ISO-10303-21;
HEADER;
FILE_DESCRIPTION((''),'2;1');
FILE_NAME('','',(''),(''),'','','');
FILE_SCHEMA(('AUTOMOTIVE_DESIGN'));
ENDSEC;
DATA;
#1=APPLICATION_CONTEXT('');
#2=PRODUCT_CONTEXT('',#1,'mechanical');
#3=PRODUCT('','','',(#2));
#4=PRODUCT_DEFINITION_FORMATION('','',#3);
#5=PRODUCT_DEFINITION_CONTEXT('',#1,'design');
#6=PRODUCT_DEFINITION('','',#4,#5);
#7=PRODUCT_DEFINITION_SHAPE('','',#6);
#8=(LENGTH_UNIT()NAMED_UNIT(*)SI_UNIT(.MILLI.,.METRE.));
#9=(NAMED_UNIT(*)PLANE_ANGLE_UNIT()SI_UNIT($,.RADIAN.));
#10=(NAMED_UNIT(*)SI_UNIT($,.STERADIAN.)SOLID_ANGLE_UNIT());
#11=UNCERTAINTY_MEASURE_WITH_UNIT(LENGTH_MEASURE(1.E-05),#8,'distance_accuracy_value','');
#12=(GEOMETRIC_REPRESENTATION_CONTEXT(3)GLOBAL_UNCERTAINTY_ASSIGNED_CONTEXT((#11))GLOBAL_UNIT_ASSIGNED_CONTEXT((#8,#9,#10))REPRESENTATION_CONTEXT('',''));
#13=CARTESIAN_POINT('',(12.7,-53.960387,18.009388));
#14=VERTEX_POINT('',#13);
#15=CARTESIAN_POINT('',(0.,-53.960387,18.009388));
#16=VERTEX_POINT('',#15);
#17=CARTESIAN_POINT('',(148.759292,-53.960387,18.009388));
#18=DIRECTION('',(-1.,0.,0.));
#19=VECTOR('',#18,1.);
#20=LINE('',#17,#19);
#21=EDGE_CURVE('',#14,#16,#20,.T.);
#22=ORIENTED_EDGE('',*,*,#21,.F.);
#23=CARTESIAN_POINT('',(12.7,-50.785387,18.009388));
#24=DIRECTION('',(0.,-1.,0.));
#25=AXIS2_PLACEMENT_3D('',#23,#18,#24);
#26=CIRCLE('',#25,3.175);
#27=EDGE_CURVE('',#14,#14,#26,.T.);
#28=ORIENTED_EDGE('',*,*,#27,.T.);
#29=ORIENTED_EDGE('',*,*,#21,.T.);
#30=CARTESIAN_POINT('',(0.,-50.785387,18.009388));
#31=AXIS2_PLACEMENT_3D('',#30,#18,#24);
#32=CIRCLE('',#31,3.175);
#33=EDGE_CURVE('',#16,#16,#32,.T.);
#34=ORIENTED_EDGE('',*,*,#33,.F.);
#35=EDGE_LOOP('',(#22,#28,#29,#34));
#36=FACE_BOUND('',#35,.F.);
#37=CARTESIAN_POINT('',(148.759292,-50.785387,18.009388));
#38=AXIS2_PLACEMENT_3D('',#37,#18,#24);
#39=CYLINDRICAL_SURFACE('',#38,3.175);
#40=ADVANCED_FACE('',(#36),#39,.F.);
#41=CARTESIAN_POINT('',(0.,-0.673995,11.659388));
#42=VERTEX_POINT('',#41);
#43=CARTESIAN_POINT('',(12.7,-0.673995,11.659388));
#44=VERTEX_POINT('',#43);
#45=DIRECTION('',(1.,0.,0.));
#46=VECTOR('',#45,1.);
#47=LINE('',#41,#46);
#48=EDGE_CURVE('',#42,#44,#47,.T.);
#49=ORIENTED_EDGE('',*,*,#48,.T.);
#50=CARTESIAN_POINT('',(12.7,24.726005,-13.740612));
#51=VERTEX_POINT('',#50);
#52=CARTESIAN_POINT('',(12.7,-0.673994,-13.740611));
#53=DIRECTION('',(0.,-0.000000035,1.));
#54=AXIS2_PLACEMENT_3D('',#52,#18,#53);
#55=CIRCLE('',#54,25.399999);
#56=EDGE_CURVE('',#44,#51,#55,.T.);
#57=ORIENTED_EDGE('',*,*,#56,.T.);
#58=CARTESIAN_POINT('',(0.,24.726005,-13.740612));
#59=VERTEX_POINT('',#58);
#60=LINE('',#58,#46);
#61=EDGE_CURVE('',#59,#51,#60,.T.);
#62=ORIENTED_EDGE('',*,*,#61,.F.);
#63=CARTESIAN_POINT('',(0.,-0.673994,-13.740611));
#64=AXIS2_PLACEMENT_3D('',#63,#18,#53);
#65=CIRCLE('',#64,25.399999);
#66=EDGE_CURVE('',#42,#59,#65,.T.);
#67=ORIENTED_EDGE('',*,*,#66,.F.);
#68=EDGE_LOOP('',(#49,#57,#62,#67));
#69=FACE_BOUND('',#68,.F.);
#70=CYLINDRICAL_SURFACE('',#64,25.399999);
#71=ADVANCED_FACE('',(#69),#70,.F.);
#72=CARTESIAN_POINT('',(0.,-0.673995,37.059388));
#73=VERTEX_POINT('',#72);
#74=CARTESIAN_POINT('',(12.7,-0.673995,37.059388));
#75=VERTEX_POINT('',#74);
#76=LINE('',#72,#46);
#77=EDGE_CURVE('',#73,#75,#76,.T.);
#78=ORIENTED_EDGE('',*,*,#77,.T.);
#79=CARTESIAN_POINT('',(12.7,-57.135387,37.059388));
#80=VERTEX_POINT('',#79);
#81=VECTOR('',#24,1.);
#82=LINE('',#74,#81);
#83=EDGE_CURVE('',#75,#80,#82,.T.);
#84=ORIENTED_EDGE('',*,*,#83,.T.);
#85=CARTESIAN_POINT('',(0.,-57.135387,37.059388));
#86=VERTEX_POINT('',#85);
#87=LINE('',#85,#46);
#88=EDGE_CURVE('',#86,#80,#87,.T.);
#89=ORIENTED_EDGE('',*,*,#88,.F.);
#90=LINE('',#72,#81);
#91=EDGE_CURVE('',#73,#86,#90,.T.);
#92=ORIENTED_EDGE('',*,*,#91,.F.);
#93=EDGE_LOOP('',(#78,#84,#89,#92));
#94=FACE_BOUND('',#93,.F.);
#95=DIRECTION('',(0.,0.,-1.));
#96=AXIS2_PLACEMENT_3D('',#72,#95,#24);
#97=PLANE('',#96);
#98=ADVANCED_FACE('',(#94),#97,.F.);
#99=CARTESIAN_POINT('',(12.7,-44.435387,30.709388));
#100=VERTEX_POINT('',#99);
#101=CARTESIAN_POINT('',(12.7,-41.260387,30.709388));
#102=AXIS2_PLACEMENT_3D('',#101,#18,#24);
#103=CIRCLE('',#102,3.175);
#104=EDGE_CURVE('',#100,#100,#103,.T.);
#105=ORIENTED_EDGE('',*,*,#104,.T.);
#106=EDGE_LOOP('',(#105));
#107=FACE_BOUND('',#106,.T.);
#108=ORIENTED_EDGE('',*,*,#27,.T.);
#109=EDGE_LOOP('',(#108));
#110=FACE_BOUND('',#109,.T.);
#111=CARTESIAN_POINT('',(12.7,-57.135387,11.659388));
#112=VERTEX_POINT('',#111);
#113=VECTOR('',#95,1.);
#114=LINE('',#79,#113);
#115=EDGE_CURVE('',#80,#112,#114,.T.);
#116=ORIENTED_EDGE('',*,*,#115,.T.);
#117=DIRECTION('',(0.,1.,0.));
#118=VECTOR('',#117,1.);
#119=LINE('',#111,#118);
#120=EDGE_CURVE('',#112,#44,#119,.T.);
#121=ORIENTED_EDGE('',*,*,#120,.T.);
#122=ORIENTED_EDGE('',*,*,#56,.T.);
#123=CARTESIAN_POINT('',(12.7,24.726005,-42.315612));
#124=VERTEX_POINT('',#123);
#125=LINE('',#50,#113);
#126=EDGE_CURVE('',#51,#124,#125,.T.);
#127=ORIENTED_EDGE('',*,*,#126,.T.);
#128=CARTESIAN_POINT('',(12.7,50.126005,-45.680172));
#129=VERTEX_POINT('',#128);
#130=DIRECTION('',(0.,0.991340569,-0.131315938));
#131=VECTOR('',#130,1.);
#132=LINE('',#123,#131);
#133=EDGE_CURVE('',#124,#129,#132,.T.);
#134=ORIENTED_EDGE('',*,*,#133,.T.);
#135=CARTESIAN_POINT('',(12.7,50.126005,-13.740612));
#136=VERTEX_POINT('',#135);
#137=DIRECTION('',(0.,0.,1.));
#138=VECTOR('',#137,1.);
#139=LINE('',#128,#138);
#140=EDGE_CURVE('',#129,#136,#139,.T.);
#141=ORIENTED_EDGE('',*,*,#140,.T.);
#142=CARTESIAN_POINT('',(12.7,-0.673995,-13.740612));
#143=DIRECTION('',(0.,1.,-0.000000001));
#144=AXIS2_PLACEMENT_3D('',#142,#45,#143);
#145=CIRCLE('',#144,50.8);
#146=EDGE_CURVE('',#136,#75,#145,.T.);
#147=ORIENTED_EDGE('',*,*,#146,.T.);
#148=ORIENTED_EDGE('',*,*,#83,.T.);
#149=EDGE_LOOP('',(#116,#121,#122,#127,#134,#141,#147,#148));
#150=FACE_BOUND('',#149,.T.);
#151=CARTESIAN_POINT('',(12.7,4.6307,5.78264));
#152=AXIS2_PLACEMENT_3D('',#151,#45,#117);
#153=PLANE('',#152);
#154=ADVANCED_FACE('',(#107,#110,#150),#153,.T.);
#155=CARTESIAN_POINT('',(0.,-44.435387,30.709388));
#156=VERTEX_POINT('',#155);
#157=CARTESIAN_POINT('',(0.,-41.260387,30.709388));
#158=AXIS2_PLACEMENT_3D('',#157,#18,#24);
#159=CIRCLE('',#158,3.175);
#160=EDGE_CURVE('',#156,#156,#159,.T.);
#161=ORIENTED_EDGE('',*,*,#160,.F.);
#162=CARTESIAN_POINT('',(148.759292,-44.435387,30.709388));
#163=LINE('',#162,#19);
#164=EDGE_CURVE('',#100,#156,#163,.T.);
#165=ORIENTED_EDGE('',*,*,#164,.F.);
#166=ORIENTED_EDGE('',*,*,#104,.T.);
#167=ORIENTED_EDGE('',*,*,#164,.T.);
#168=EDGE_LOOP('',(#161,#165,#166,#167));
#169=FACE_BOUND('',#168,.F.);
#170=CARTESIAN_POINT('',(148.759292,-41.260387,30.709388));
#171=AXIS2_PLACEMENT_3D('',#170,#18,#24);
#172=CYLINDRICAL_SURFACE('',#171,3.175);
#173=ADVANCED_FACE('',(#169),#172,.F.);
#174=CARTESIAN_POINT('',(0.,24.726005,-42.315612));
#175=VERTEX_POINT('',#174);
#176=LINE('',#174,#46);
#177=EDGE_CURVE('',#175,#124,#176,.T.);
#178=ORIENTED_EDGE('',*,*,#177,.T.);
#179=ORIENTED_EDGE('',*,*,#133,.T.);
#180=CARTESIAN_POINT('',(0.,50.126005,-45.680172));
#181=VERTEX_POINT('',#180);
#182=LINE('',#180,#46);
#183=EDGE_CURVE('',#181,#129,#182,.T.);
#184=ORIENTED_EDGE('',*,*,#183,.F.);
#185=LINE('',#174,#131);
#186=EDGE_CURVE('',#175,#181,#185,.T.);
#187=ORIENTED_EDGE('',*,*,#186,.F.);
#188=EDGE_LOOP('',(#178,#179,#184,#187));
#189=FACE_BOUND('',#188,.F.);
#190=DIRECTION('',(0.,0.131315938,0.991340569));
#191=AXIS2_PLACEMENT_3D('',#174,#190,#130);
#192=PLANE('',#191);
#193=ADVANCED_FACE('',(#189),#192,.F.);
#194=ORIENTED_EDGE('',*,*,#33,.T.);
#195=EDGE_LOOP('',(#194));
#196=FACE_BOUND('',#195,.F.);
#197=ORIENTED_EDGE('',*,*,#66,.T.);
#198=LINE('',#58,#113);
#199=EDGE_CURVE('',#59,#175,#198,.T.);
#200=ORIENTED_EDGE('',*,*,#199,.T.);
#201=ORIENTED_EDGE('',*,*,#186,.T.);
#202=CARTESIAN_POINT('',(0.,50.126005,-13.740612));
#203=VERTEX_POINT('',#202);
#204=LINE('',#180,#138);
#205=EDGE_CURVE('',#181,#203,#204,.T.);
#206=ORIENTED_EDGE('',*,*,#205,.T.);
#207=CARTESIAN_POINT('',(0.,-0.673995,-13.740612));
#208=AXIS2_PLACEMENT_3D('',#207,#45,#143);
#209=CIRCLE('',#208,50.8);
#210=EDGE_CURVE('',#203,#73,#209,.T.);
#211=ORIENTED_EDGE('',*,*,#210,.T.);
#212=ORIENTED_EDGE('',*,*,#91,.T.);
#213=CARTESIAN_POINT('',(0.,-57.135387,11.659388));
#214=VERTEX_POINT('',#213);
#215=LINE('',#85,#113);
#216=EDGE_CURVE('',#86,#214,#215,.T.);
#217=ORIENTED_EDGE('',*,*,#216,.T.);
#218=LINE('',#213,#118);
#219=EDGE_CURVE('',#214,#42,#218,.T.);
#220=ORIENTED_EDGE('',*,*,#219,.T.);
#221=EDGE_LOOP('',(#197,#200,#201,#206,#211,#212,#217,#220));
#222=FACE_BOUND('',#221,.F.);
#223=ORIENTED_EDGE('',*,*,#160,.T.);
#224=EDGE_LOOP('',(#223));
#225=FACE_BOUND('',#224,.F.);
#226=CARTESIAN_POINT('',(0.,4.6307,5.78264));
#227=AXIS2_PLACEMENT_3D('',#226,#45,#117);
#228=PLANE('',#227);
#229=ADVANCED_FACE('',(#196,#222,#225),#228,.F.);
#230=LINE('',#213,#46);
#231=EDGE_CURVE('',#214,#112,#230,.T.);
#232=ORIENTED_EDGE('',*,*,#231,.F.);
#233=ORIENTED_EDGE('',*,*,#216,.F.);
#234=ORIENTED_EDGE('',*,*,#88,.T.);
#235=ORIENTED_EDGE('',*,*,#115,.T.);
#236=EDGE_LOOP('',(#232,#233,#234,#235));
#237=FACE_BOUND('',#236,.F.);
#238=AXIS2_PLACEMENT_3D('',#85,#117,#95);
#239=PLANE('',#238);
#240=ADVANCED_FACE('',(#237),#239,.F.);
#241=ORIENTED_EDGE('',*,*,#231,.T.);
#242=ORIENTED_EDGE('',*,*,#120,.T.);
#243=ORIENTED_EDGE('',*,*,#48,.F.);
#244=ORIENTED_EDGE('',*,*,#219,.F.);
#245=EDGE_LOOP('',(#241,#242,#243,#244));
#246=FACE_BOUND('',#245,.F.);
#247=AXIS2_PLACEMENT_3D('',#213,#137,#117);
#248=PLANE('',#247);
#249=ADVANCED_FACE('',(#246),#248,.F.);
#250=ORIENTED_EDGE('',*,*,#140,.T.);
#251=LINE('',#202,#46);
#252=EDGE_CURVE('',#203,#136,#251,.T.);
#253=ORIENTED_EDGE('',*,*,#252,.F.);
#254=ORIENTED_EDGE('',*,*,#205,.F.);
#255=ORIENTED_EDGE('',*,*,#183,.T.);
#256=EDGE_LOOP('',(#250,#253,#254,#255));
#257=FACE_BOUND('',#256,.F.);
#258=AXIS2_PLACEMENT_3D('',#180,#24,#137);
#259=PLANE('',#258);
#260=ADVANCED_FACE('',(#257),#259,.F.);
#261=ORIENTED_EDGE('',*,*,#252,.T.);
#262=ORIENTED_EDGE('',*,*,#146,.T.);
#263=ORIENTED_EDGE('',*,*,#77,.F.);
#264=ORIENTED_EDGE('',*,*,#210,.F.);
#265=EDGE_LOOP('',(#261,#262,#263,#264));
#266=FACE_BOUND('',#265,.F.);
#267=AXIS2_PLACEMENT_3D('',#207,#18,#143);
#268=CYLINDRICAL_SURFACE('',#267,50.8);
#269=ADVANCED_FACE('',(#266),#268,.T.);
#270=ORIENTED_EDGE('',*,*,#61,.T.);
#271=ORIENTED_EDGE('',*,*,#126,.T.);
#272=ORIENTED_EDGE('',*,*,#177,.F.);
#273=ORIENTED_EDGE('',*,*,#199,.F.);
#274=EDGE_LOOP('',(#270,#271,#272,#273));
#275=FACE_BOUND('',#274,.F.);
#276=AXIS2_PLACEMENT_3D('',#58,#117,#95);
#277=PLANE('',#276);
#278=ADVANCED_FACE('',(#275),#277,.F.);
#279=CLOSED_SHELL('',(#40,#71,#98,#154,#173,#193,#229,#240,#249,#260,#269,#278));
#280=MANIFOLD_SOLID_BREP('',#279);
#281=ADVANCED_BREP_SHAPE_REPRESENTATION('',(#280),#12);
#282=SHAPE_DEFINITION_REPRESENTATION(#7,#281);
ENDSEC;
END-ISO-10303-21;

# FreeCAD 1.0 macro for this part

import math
import FreeCAD as App
import Part
import Sketcher
Q = App.Units.Quantity

doc = App.newDocument("Part")
body = doc.addObject("PartDesign::Body", "Body")

# Sketch on YZ plane
sketch1 = body.newObject("Sketcher::SketchObject", "Sketch")
sketch1.AttachmentSupport = (doc.getObject("YZ_Plane"), [""])
sketch1.MapMode = "FlatFace"
sketch1.addGeometry(Part.LineSegment(App.Vector(-57, 37, 0), App.Vector(-57, 12, 0)), False)
sketch1.addGeometry(Part.LineSegment(App.Vector(-57, 12, 0), App.Vector(-1, 12, 0)), False)
sketch1.addGeometry(Part.ArcOfCircle(Part.Circle(App.Vector(-1, -14, 0), App.Vector(0, 0, 1), 25), math.radians(0), math.radians(90)), False)
sketch1.addGeometry(Part.LineSegment(App.Vector(25, -14, 0), App.Vector(25, -42, 0)), False)
sketch1.addGeometry(Part.LineSegment(App.Vector(25, -42, 0), App.Vector(50, -46, 0)), False)
sketch1.addGeometry(Part.LineSegment(App.Vector(50, -46, 0), App.Vector(50, -14, 0)), False)
sketch1.addGeometry(Part.ArcOfCircle(Part.Circle(App.Vector(-1, -14, 0), App.Vector(0, 0, 1), 51), math.radians(0), math.radians(90)), False)
sketch1.addGeometry(Part.LineSegment(App.Vector(-1, 37, 0), App.Vector(-57, 37, 0)), False)
sketch1.addConstraint(Sketcher.Constraint("Coincident", 0, 2, 1, 1))
sketch1.addConstraint(Sketcher.Constraint("Tangent", 1, 2, 2, 2))
sketch1.addConstraint(Sketcher.Constraint("Tangent", 2, 1, 3, 1))
sketch1.addConstraint(Sketcher.Constraint("Coincident", 3, 2, 4, 1))
sketch1.addConstraint(Sketcher.Constraint("Coincident", 4, 2, 5, 1))
sketch1.addConstraint(Sketcher.Constraint("Tangent", 5, 2, 6, 1))
sketch1.addConstraint(Sketcher.Constraint("Tangent", 6, 2, 7, 1))
sketch1.addConstraint(Sketcher.Constraint("Coincident", 7, 2, 0, 1))
sketch1.addConstraint(Sketcher.Constraint("Vertical", 0))
sketch1.addConstraint(Sketcher.Constraint("Horizontal", 1))
sketch1.addConstraint(Sketcher.Constraint("Vertical", 3))
sketch1.addConstraint(Sketcher.Constraint("Vertical", 5))
sketch1.addConstraint(Sketcher.Constraint("Horizontal", 7))
sketch1.addConstraint(Sketcher.Constraint("Coincident", 6, 3, 2, 3))
sketch1.addConstraint(Sketcher.Constraint("Radius", 2, Q("1 in")))
sketch1.addConstraint(Sketcher.Constraint("Radius", 6, Q("2 in")))
sketch1.addConstraint(Sketcher.Constraint("DistanceY", 3, 2, 3, 1, Q("1.125 in")))
sketch1.addConstraint(Sketcher.Constraint("DistanceY", 5, 1, 5, 2, 31.93956))
sketch1.addConstraint(Sketcher.Constraint("DistanceX", 1, 1, 1, 2, 56.461392))
sketch1.addConstraint(Sketcher.Constraint("DistanceY", 2, 3, -1, 1, 13.740611))
sketch1.addConstraint(Sketcher.Constraint("DistanceX", 2, 3, -1, 1, 0.673994))
pad1 = body.newObject("PartDesign::Pad", "Pad")
pad1.Profile = sketch1
pad1.Length = Q("0.5 in")

# Sketch on YZ plane
sketch2 = body.newObject("Sketcher::SketchObject", "Sketch001")
sketch2.AttachmentSupport = (doc.getObject("YZ_Plane"), [""])
sketch2.MapMode = "FlatFace"
sketch2.AttachmentOffset = App.Placement(App.Vector(0, 0, 0.5 * 25.4), App.Rotation())
sketch2.addGeometry(Part.Circle(App.Vector(-50.8, 18, 0), App.Vector(0, 0, 1), 3.2), False)
sketch2.addGeometry(Part.Circle(App.Vector(-41.3, 30.7, 0), App.Vector(0, 0, 1), 3.2), False)
sketch2.addConstraint(Sketcher.Constraint("Equal", 0, 1))
sketch2.addConstraint(Sketcher.Constraint("Diameter", 0, Q("0.25 in")))
sketch2.addConstraint(Sketcher.Constraint("DistanceY", 0, 3, 1, 3, Q("0.5 in")))
sketch2.addConstraint(Sketcher.Constraint("DistanceX", 0, 3, 1, 3, Q("0.375 in")))
sketch2.addConstraint(Sketcher.Constraint("DistanceY", -1, 1, 0, 3, 18.009388))
sketch2.addConstraint(Sketcher.Constraint("DistanceX", 0, 3, -1, 1, 50.785387))
doc.recompute()
hole = body.newObject("PartDesign::Hole", "Hole")
hole.Profile = sketch2
hole.ThreadType = "None"
hole.Diameter = Q("0.25 in")
hole.DepthType = "ThroughAll"

doc.recompute()
